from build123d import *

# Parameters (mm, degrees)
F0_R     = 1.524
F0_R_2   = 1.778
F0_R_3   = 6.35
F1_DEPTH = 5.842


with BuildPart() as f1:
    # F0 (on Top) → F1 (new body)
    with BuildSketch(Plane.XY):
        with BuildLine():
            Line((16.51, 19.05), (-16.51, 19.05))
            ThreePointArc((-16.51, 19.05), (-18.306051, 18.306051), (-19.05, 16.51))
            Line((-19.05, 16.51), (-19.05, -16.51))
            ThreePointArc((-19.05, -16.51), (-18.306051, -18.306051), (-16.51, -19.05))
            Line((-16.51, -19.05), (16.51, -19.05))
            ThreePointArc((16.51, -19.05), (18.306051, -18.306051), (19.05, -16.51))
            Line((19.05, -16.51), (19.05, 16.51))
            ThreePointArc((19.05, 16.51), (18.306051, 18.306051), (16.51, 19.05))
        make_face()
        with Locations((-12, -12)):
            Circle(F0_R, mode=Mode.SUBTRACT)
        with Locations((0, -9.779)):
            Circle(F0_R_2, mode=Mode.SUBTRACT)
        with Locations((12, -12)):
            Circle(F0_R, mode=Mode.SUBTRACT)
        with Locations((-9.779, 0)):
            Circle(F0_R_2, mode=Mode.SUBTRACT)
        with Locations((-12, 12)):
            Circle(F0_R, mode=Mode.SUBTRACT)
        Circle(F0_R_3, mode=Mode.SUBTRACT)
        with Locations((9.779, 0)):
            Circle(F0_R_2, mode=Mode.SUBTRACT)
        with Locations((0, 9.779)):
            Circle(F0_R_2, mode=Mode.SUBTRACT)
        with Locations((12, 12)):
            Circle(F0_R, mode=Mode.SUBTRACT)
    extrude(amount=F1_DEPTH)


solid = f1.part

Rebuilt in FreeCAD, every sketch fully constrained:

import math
import FreeCAD as App
import Part
import Sketcher
from FreeCAD import Vector
Q = App.Units.Quantity

doc = App.newDocument("Part")
body = doc.addObject("PartDesign::Body", "Body")

# Sketch on XY plane
sketch1 = body.newObject("Sketcher::SketchObject", "Sketch")
sketch1.AttachmentSupport = (doc.getObject("XY_Plane"), [""])
sketch1.MapMode = "FlatFace"
sketch1.addGeometry(Part.LineSegment(Vector(16.51, 19.05, 0), Vector(-16.51, 19.05, 0)), False)
sketch1.addGeometry(Part.ArcOfCircle(Part.Circle(Vector(-16.509999, 16.509999, 0), Vector(0, 0, 1), 2.540001), math.radians(90.000017), math.radians(179.999983)), False)
sketch1.addGeometry(Part.LineSegment(Vector(-19.05, 16.51, 0), Vector(-19.05, -16.51, 0)), False)
sketch1.addGeometry(Part.ArcOfCircle(Part.Circle(Vector(-16.509999, -16.509999, 0), Vector(0, 0, 1), 2.540001), math.radians(-179.999983), math.radians(-90.000017)), False)
sketch1.addGeometry(Part.LineSegment(Vector(-16.51, -19.05, 0), Vector(16.51, -19.05, 0)), False)
sketch1.addGeometry(Part.ArcOfCircle(Part.Circle(Vector(16.509999, -16.509999, 0), Vector(0, 0, 1), 2.540001), math.radians(-89.999983), math.radians(-0.000017)), False)
sketch1.addGeometry(Part.LineSegment(Vector(19.05, -16.51, 0), Vector(19.05, 16.51, 0)), False)
sketch1.addGeometry(Part.ArcOfCircle(Part.Circle(Vector(16.509999, 16.509999, 0), Vector(0, 0, 1), 2.540001), math.radians(0.000017), math.radians(89.999983)), False)
sketch1.addGeometry(Part.Circle(Vector(-12, -12, 0), Vector(0, 0, 1), 1.524), False)
sketch1.addGeometry(Part.Circle(Vector(0, -9.779, 0), Vector(0, 0, 1), 1.778), False)
sketch1.addGeometry(Part.Circle(Vector(12, -12, 0), Vector(0, 0, 1), 1.524), False)
sketch1.addGeometry(Part.Circle(Vector(-9.779, 0, 0), Vector(0, 0, 1), 1.778), False)
sketch1.addGeometry(Part.Circle(Vector(-12, 12, 0), Vector(0, 0, 1), 1.524), False)
sketch1.addGeometry(Part.Circle(Vector(0, 0, 0), Vector(0, 0, 1), 6.35), False)
sketch1.addGeometry(Part.Circle(Vector(9.779, 0, 0), Vector(0, 0, 1), 1.778), False)
sketch1.addGeometry(Part.Circle(Vector(0, 9.779, 0), Vector(0, 0, 1), 1.778), False)
sketch1.addGeometry(Part.Circle(Vector(12, 12, 0), Vector(0, 0, 1), 1.524), False)
sketch1.addConstraint(Sketcher.Constraint("Tangent", 0, 2, 1, 1))
sketch1.addConstraint(Sketcher.Constraint("Tangent", 1, 2, 2, 1))
sketch1.addConstraint(Sketcher.Constraint("Tangent", 2, 2, 3, 1))
sketch1.addConstraint(Sketcher.Constraint("Tangent", 3, 2, 4, 1))
sketch1.addConstraint(Sketcher.Constraint("Tangent", 4, 2, 5, 1))
sketch1.addConstraint(Sketcher.Constraint("Tangent", 5, 2, 6, 1))
sketch1.addConstraint(Sketcher.Constraint("Tangent", 6, 2, 7, 1))
sketch1.addConstraint(Sketcher.Constraint("Tangent", 7, 2, 0, 1))
sketch1.addConstraint(Sketcher.Constraint("Horizontal", 0))
sketch1.addConstraint(Sketcher.Constraint("Vertical", 2))
sketch1.addConstraint(Sketcher.Constraint("Horizontal", 4))
sketch1.addConstraint(Sketcher.Constraint("Vertical", 6))
sketch1.addConstraint(Sketcher.Constraint("Coincident", 13, 3, -1, 1))
sketch1.addConstraint(Sketcher.Constraint("Equal", 1, 3))
sketch1.addConstraint(Sketcher.Constraint("Equal", 3, 5))
sketch1.addConstraint(Sketcher.Constraint("Equal", 5, 7))
sketch1.addConstraint(Sketcher.Constraint("Equal", 8, 10))
sketch1.addConstraint(Sketcher.Constraint("Equal", 9, 11))
sketch1.addConstraint(Sketcher.Constraint("Equal", 10, 12))
sketch1.addConstraint(Sketcher.Constraint("Equal", 11, 14))
sketch1.addConstraint(Sketcher.Constraint("Equal", 14, 15))
sketch1.addConstraint(Sketcher.Constraint("Equal", 12, 16))
sketch1.addConstraint(Sketcher.Constraint("Symmetric", 1, 3, 5, 3, -1, 1))
sketch1.addConstraint(Sketcher.Constraint("Symmetric", 10, 3, 12, 3, -1, 1))
sketch1.addConstraint(Sketcher.Constraint("Symmetric", 11, 3, 14, 3, -1, 1))
sketch1.addConstraint(Sketcher.Constraint("Symmetric", 9, 3, 15, 3, -1, 1))
sketch1.addConstraint(Sketcher.Constraint("Symmetric", 8, 3, 16, 3, -1, 1))
sketch1.addConstraint(Sketcher.Constraint("Symmetric", 8, 3, 10, 3, -2))
sketch1.addConstraint(Sketcher.Constraint("PointOnObject", 9, 3, -2))
sketch1.addConstraint(Sketcher.Constraint("PointOnObject", 11, 3, -1))
sketch1.addConstraint(Sketcher.Constraint("Equal", 4, 2))
sketch1.addConstraint(Sketcher.Constraint("Diameter", 13, Q("0.5 in")))
sketch1.addConstraint(Sketcher.Constraint("Radius", 1, Q("0.1 in")))
sketch1.addConstraint(Sketcher.Constraint("Diameter", 8, Q("0.12 in")))
sketch1.addConstraint(Sketcher.Constraint("Diameter", 9, Q("0.14 in")))
sketch1.addConstraint(Sketcher.Constraint("DistanceX", 0, 2, 0, 1, Q("1.3 in")))
sketch1.addConstraint(Sketcher.Constraint("DistanceY", 9, 3, -1, 1, Q("0.385 in")))
sketch1.addConstraint(Sketcher.Constraint("DistanceX", 11, 3, -1, 1, Q("0.385 in")))
sketch1.addConstraint(Sketcher.Constraint("DistanceX", 8, 3, -1, 1, Q("12 mm")))
sketch1.addConstraint(Sketcher.Constraint("DistanceY", 8, 3, -1, 1, Q("12 mm")))
pad1 = body.newObject("PartDesign::Pad", "Pad")
pad1.Profile = sketch1
pad1.Length = Q("0.23 in")

doc.recompute()
